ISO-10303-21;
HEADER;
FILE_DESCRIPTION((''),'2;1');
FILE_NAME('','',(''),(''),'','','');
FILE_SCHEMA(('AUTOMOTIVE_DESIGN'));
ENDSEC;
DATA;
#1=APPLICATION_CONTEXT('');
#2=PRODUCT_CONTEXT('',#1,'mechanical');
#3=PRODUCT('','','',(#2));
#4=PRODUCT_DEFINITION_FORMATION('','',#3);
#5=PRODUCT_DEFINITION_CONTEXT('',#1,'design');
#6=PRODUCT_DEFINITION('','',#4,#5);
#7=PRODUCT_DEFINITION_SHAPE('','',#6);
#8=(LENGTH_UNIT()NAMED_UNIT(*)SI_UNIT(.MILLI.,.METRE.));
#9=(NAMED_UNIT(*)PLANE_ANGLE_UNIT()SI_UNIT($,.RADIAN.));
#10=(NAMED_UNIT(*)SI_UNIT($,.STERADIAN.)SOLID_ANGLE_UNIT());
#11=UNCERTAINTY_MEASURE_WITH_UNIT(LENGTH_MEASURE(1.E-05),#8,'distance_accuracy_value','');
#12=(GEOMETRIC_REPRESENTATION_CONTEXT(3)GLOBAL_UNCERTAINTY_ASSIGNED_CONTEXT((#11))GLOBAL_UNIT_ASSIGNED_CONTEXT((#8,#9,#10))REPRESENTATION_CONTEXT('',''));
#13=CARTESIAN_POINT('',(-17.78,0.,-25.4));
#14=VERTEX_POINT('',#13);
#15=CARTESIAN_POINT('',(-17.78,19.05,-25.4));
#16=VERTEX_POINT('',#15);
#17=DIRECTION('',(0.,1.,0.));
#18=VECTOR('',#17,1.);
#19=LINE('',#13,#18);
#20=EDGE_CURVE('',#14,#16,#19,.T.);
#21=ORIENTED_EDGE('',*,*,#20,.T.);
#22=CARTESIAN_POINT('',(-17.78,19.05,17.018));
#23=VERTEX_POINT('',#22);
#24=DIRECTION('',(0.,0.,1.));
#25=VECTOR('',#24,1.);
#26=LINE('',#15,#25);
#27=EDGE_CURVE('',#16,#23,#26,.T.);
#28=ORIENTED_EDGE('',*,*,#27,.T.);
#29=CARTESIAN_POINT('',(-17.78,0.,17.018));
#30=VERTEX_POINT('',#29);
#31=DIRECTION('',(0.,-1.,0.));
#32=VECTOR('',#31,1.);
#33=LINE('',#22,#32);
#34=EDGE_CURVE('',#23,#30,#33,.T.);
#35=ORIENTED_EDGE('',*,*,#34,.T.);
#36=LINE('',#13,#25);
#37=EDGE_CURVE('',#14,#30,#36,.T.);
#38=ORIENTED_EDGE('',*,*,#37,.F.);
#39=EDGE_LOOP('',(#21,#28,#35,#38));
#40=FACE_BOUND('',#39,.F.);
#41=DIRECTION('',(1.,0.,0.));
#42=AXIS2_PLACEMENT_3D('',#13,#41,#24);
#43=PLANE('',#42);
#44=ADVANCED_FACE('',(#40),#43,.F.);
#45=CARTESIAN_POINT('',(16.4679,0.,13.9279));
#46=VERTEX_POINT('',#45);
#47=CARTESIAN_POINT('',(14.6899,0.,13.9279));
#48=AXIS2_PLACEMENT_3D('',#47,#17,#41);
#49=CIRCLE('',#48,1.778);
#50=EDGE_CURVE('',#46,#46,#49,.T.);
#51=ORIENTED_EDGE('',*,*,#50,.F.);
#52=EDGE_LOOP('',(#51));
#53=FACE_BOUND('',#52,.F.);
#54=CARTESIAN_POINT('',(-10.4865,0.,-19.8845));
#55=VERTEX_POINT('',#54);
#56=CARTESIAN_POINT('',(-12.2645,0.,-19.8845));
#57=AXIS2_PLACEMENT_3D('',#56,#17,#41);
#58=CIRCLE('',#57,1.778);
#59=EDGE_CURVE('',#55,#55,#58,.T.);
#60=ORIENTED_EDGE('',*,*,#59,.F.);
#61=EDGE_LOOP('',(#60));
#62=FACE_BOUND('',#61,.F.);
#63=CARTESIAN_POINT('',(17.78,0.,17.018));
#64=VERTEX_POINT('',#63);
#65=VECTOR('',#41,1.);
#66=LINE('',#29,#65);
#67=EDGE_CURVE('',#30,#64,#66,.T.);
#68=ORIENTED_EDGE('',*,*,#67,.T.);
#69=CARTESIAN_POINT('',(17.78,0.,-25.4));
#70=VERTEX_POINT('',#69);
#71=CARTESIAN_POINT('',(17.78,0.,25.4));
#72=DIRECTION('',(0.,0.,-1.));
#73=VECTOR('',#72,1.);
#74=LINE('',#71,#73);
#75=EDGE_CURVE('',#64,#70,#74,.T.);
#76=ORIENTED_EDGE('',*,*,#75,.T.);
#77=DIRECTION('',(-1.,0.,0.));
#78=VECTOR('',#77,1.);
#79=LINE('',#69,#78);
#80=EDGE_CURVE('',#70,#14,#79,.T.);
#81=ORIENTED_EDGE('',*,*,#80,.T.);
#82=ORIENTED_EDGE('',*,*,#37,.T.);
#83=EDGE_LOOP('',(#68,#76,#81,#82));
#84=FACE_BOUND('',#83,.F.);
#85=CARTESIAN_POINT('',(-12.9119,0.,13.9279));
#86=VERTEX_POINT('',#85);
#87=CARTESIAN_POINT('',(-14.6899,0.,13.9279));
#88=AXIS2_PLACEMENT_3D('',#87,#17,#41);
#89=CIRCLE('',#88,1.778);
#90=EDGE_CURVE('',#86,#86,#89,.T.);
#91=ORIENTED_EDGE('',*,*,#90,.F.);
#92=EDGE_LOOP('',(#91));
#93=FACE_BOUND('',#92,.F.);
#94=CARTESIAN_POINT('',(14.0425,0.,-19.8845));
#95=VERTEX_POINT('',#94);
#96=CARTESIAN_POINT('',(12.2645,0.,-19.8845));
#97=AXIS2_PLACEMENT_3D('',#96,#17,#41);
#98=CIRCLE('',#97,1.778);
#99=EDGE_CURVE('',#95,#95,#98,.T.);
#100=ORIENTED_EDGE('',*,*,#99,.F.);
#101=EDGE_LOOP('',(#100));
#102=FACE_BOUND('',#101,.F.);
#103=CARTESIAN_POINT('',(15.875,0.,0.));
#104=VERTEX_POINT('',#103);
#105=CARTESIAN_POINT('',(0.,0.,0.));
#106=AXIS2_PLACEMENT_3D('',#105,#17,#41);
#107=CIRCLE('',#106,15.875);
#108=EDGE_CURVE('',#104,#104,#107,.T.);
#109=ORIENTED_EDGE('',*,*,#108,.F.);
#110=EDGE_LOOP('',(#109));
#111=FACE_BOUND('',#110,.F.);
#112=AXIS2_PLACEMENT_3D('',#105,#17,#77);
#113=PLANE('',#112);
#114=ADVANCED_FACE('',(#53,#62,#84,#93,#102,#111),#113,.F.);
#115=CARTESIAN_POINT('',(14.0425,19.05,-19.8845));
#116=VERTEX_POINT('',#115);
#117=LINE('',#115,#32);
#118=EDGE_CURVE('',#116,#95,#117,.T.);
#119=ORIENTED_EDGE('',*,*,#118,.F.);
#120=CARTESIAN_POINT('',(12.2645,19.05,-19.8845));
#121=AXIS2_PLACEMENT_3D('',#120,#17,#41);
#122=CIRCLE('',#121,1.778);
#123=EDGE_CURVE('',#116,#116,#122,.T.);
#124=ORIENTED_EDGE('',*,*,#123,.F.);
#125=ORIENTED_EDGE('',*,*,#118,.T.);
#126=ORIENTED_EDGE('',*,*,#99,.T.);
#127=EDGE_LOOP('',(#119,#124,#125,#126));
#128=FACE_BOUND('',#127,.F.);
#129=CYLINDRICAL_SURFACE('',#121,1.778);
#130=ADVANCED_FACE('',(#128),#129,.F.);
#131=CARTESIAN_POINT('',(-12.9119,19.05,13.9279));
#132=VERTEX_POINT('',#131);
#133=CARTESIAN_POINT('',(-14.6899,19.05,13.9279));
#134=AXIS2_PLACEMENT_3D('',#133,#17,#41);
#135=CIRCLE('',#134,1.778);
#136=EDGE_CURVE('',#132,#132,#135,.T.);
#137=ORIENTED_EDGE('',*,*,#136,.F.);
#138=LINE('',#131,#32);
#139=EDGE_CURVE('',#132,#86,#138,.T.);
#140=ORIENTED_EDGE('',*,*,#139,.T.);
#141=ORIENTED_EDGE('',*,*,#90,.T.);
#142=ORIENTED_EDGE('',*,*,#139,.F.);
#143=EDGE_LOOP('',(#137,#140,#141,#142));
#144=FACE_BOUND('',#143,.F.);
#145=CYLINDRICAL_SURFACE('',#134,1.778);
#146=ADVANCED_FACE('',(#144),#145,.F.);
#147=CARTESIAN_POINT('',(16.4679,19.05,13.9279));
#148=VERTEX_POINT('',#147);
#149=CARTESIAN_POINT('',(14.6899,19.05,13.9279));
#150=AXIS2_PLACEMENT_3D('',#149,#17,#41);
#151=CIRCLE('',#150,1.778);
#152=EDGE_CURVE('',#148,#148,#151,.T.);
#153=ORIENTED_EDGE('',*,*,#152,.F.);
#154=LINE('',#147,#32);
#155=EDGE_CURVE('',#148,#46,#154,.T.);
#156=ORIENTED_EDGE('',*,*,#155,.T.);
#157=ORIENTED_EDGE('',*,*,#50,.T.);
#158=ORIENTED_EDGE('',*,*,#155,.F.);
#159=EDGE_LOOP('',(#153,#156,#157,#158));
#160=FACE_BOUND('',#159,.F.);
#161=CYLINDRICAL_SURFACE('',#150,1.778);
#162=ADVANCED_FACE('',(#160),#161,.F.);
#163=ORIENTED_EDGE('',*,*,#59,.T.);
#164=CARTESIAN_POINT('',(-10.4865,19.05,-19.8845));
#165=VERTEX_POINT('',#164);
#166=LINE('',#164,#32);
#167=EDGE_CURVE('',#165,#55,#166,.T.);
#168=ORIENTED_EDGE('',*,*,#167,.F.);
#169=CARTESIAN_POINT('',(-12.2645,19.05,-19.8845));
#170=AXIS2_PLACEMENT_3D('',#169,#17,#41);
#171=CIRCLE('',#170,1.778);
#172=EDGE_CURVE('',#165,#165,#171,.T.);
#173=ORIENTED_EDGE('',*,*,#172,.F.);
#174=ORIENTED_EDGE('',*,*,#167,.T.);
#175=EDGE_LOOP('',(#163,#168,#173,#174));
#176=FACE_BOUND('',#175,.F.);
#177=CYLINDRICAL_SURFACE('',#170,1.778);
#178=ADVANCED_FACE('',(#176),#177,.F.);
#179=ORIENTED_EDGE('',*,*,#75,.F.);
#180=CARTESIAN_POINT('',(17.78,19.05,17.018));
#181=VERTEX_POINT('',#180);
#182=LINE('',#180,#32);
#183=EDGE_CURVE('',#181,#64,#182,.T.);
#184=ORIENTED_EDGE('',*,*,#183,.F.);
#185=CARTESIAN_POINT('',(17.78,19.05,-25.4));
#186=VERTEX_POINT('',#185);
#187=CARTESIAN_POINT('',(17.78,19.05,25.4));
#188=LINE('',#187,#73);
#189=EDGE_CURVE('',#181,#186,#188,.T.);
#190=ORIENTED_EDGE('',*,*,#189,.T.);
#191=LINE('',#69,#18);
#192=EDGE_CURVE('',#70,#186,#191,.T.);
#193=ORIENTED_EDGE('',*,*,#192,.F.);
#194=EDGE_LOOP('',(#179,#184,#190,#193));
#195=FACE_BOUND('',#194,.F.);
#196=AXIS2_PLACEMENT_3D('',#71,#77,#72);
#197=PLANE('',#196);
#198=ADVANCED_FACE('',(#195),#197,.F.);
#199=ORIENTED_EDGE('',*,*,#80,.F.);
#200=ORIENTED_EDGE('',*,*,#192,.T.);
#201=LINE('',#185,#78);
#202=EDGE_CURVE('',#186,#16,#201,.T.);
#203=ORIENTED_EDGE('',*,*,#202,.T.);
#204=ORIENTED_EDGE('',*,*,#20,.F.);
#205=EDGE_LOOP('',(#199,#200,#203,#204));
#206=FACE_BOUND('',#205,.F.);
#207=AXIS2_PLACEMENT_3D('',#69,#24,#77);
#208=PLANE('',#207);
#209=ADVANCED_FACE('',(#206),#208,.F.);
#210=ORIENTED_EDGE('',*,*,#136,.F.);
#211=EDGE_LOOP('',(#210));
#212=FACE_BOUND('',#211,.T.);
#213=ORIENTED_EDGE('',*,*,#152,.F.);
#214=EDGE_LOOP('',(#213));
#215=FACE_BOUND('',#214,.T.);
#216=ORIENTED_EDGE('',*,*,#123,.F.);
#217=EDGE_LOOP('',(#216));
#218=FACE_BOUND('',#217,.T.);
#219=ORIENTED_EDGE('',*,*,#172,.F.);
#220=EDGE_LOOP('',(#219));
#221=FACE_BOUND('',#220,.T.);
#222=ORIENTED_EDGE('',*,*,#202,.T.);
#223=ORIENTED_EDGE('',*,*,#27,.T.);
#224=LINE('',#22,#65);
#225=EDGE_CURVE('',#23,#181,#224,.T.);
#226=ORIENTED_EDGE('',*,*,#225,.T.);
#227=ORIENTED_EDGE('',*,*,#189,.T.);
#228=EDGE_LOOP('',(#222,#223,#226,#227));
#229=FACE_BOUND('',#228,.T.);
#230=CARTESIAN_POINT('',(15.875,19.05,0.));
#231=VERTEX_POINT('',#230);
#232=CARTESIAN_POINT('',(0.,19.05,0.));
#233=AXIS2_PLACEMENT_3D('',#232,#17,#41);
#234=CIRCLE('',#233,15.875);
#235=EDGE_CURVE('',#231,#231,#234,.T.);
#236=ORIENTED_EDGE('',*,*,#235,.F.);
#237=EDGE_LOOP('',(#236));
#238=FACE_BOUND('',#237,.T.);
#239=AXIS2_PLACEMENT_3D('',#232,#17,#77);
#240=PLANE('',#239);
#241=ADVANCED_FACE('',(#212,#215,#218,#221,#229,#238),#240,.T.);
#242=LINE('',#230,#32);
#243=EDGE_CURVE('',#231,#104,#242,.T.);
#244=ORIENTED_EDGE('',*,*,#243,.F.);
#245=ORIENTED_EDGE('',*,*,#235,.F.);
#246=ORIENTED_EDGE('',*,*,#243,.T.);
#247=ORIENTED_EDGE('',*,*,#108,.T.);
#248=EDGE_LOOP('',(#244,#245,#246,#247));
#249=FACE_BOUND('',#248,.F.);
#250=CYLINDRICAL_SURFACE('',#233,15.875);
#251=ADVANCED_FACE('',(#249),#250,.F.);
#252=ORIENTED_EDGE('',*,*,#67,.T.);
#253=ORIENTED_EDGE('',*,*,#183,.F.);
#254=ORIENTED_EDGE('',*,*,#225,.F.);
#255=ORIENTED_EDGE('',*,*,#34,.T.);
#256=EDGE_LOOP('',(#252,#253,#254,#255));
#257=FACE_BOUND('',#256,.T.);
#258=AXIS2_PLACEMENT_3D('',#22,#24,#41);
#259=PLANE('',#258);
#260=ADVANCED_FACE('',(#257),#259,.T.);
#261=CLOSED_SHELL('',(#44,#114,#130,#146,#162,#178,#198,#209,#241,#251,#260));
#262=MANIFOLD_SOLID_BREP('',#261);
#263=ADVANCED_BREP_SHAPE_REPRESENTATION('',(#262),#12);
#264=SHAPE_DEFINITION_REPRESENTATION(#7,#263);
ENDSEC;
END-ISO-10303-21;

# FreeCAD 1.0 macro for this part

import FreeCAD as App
import Part
import Sketcher
from FreeCAD import Vector
Q = App.Units.Quantity

doc = App.newDocument("Part")
body = doc.addObject("PartDesign::Body", "Body")

# Sketch on XZ plane
sketch1 = doc.addObject("Sketcher::SketchObject", "Sketch")
body.addObject(sketch1)
sketch1.AttachmentSupport = (doc.XZ_Plane, [""])
sketch1.MapMode = "FlatFace"
sketch1.addGeometry([
    Part.LineSegment(Vector(18, 25, 0), Vector(18, -25, 0)),
    Part.LineSegment(Vector(18, -25, 0), Vector(-18, -25, 0)),
    Part.LineSegment(Vector(-18, -25, 0), Vector(-18, 25, 0)),
    Part.LineSegment(Vector(-18, 25, 0), Vector(18, 25, 0)),
], False)
sketch1.addConstraint([
    Sketcher.Constraint("Coincident", 0, 2, 1, 1),
    Sketcher.Constraint("Coincident", 1, 2, 2, 1),
    Sketcher.Constraint("Coincident", 2, 2, 3, 1),
    Sketcher.Constraint("Coincident", 3, 2, 0, 1),
    Sketcher.Constraint("Vertical", 0),
    Sketcher.Constraint("Horizontal", 1),
    Sketcher.Constraint("Vertical", 2),
    Sketcher.Constraint("Horizontal", 3),
    Sketcher.Constraint("Symmetric", 0, 2, 2, 2, -1, 1),
    Sketcher.Constraint("DistanceY", 0, 2, 0, 1, Q("2 in")),
    Sketcher.Constraint("DistanceX", 1, 2, 1, 1, Q("1.4 in")),
])
pad1 = doc.addObject("PartDesign::Pad", "Pad")
body.addObject(pad1)
pad1.Profile = sketch1
pad1.Length = Q("0.75 in")
pad1.Reversed = True

# Sketch on XZ plane
sketch2 = doc.addObject("Sketcher::SketchObject", "Sketch001")
body.addObject(sketch2)
sketch2.AttachmentSupport = (doc.XZ_Plane, [""])
sketch2.MapMode = "FlatFace"
sketch2.AttachmentOffset = App.Placement(Vector(0, 0, -0.75 * 25.4), App.Rotation())
sketch2.addGeometry(Part.Circle(Vector(0, 0, 0), Vector(0, 0, 1), 16), False)
sketch2.addConstraint([
    Sketcher.Constraint("Coincident", 0, 3, -1, 1),
    Sketcher.Constraint("Diameter", 0, Q("1.25 in")),
])
pocket1 = doc.addObject("PartDesign::Pocket", "Pocket")
body.addObject(pocket1)
pocket1.Profile = sketch2
pocket1.Length = Q("0.75 in")
pocket1.Reversed = True

# Sketch on XZ plane
sketch3 = doc.addObject("Sketcher::SketchObject", "Sketch002")
body.addObject(sketch3)
sketch3.AttachmentSupport = (doc.XZ_Plane, [""])
sketch3.MapMode = "FlatFace"
sketch3.AttachmentOffset = App.Placement(Vector(0, 0, -0.75 * 25.4), App.Rotation())
sketch3.addGeometry([
    Part.Circle(Vector(12.3, -19.9, 0), Vector(0, 0, 1), 1.8),
    Part.Circle(Vector(-12.3, -19.9, 0), Vector(0, 0, 1), 1.8),
    Part.Circle(Vector(-12.3, 19.9, 0), Vector(0, 0, 1), 1.8),
    Part.Circle(Vector(12.3, 19.9, 0), Vector(0, 0, 1), 1.8),
], False)
sketch3.addConstraint([
    Sketcher.Constraint("Equal", 0, 1),
    Sketcher.Constraint("Equal", 1, 2),
    Sketcher.Constraint("Equal", 2, 3),
    Sketcher.Constraint("Symmetric", 0, 3, 2, 3, -1, 1),
    Sketcher.Constraint("Symmetric", 1, 3, 3, 3, -1, 1),
    Sketcher.Constraint("Symmetric", 0, 3, 1, 3, -2),
    Sketcher.Constraint("Diameter", 0, Q("0.14 in")),
    Sketcher.Constraint("DistanceX", 1, 3, 0, 3, Q("0.9657 in")),
    Sketcher.Constraint("DistanceY", 1, 3, 2, 3, Q("1.5657 in")),
])
pocket2 = doc.addObject("PartDesign::Pocket", "Pocket001")
body.addObject(pocket2)
pocket2.Profile = sketch3
pocket2.Length = Q("0.75 in")
pocket2.Reversed = True

# Sketch on XZ plane
sketch4 = doc.addObject("Sketcher::SketchObject", "Sketch003")
body.addObject(sketch4)
sketch4.AttachmentSupport = (doc.XZ_Plane, [""])
sketch4.MapMode = "FlatFace"
sketch4.AttachmentOffset = App.Placement(Vector(0, 0, -0.75 * 25.4), App.Rotation())
sketch4.addGeometry([
    Part.LineSegment(Vector(18, 17, 0), Vector(-18, 17, 0)),
    Part.LineSegment(Vector(-18, 17, 0), Vector(-18, 25, 0)),
    Part.LineSegment(Vector(-18, 25, 0), Vector(18, 25, 0)),
    Part.LineSegment(Vector(18, 25, 0), Vector(18, 17, 0)),
], False)
sketch4.addConstraint([
    Sketcher.Constraint("Coincident", 0, 2, 1, 1),
    Sketcher.Constraint("Coincident", 1, 2, 2, 1),
    Sketcher.Constraint("Coincident", 2, 2, 3, 1),
    Sketcher.Constraint("Coincident", 3, 2, 0, 1),
    Sketcher.Constraint("Horizontal", 0),
    Sketcher.Constraint("Vertical", 1),
    Sketcher.Constraint("Horizontal", 2),
    Sketcher.Constraint("Vertical", 3),
    Sketcher.Constraint("DistanceX", 0, 2, 0, 1, Q("1.4 in")),
    Sketcher.Constraint("DistanceY", -1, 1, 1, 2, Q("1 in")),
    Sketcher.Constraint("DistanceY", 1, 1, 1, 2, Q("0.33 in")),
    Sketcher.Constraint("DistanceX", 0, 2, -1, 1, Q("0.7 in")),
])
pocket3 = doc.addObject("PartDesign::Pocket", "Pocket002")
body.addObject(pocket3)
pocket3.Profile = sketch4
pocket3.Length = Q("0.75 in")
pocket3.Reversed = True

# Sketch on XZ plane
sketch5 = doc.addObject("Sketcher::SketchObject", "Sketch004")
body.addObject(sketch5)
sketch5.AttachmentSupport = (doc.XZ_Plane, [""])
sketch5.MapMode = "FlatFace"
sketch5.AttachmentOffset = App.Placement(Vector(0, 0, -0.75 * 25.4), App.Rotation())
sketch5.addGeometry([
    Part.Circle(Vector(-14.7, 13.9, 0), Vector(0, 0, 1), 1.8),
    Part.Circle(Vector(14.7, 13.9, 0), Vector(0, 0, 1), 1.8),
], False)
sketch5.addConstraint([
    Sketcher.Constraint("Equal", 0, 1),
    Sketcher.Constraint("Symmetric", 0, 3, 1, 3, -2),
    Sketcher.Constraint("Diameter", 0, Q("0.14 in")),
    Sketcher.Constraint("DistanceX", 0, 3, -1, 1, Q("14.69 mm")),
    Sketcher.Constraint("DistanceY", -1, 1, 0, 3, Q("13.928 mm")),
])
pocket4 = doc.addObject("PartDesign::Pocket", "Pocket003")
body.addObject(pocket4)
pocket4.Profile = sketch5
pocket4.Length = Q("0.75 in")
pocket4.Reversed = True

doc.recompute()
